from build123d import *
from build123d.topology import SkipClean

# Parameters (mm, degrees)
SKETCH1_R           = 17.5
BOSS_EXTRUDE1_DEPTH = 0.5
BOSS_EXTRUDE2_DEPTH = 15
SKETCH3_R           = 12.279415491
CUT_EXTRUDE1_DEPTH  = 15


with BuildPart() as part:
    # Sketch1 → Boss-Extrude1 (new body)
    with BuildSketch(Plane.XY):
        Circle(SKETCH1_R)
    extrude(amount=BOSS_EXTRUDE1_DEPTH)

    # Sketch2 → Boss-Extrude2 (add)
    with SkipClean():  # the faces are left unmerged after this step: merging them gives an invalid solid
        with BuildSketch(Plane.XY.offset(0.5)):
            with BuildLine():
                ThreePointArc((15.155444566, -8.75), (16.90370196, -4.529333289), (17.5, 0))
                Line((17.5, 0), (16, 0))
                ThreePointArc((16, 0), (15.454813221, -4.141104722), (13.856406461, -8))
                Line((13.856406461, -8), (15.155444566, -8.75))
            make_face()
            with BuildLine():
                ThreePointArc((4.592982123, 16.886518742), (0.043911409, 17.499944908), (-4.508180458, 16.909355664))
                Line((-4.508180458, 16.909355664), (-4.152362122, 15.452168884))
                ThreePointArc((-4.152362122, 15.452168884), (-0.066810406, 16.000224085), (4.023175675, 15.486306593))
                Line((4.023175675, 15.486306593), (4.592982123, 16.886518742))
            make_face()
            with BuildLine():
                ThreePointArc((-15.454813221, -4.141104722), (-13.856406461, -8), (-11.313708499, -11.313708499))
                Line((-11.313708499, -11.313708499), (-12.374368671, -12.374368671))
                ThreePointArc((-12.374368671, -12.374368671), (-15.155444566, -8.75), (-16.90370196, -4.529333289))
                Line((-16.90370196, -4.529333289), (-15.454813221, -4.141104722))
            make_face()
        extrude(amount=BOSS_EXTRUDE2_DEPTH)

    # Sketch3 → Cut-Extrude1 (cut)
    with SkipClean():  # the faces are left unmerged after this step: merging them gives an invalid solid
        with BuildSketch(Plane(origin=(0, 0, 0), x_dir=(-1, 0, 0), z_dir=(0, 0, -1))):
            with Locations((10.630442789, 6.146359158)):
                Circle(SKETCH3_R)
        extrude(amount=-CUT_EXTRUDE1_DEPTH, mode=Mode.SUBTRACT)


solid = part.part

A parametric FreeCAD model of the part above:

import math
import FreeCAD as App
import Part
import Sketcher

V = App.Vector
Q = App.Units.Quantity

doc = App.newDocument("Part")
body = doc.addObject("PartDesign::Body", "Body")

sketch1 = body.newObject("Sketcher::SketchObject", "Sketch")
sketch1.AttachmentSupport = (doc.getObject("XY_Plane"), [""])
sketch1.MapMode = "FlatFace"
sketch1.addGeometry(Part.Circle(V(0, 0, 0), V(0, 0, 1), 18), False)
sketch1.addConstraint(Sketcher.Constraint("Coincident", 0, 3, -1, 1))
sketch1.addConstraint(Sketcher.Constraint("Diameter", 0, 35.0))
pad1 = body.newObject("PartDesign::Pad", "Pad")
pad1.Profile = sketch1
pad1.Length = 0.5

sketch2 = body.newObject("Sketcher::SketchObject", "Sketch001")
sketch2.AttachmentSupport = (doc.getObject("XY_Plane"), [""])
sketch2.MapMode = "FlatFace"
sketch2.AttachmentOffset = App.Placement(V(0, 0, 0.5), App.Rotation())
sketch2.addGeometry(Part.ArcOfCircle(Part.Circle(V(0, 0, 0), V(0, 0, 1), 17.5), math.radians(-30), math.radians(0)), False)
sketch2.addGeometry(Part.LineSegment(V(17.5, 0, 0), V(16, 0, 0)), False)
sketch2.addGeometry(Part.ArcOfCircle(Part.Circle(V(0, 0, 0), V(0, 0, 1), 16), math.radians(-30), math.radians(0)), False)
sketch2.addGeometry(Part.LineSegment(V(13.9, -8, 0), V(15.2, -8.8, 0)), False)
sketch2.addGeometry(Part.ArcOfCircle(Part.Circle(V(0, 0, 0), V(0, 0, 1), 17.5), math.radians(75), math.radians(105)), False)
sketch2.addGeometry(Part.LineSegment(V(-4.5, 16.9, 0), V(-4.2, 15.5, 0)), False)
sketch2.addGeometry(Part.ArcOfCircle(Part.Circle(V(0, 0, 0), V(0, 0, 1), 16), math.radians(75), math.radians(105)), False)
sketch2.addGeometry(Part.LineSegment(V(4, 15.5, 0), V(4.6, 16.9, 0)), False)
sketch2.addGeometry(Part.ArcOfCircle(Part.Circle(V(0, 0, 0), V(0, 0, 1), 16), math.radians(-165), math.radians(-135)), False)
sketch2.addGeometry(Part.LineSegment(V(-15.5, -4.1, 0), V(-16.9, -4.5, 0)), False)
sketch2.addGeometry(Part.ArcOfCircle(Part.Circle(V(0, 0, 0), V(0, 0, 1), 17.5), math.radians(-165), math.radians(-135)), False)
sketch2.addGeometry(Part.LineSegment(V(-12.4, -12.4, 0), V(-11.3, -11.3, 0)), False)
sketch2.addConstraint(Sketcher.Constraint("Coincident", 0, 2, 1, 1))
sketch2.addConstraint(Sketcher.Constraint("Coincident", 1, 2, 2, 2))
sketch2.addConstraint(Sketcher.Constraint("Coincident", 2, 1, 3, 1))
sketch2.addConstraint(Sketcher.Constraint("Coincident", 3, 2, 0, 1))
sketch2.addConstraint(Sketcher.Constraint("Coincident", 4, 2, 5, 1))
sketch2.addConstraint(Sketcher.Constraint("Coincident", 5, 2, 6, 2))
sketch2.addConstraint(Sketcher.Constraint("Coincident", 6, 1, 7, 1))
sketch2.addConstraint(Sketcher.Constraint("Coincident", 7, 2, 4, 1))
sketch2.addConstraint(Sketcher.Constraint("Coincident", 8, 1, 9, 1))
sketch2.addConstraint(Sketcher.Constraint("Coincident", 9, 2, 10, 1))
sketch2.addConstraint(Sketcher.Constraint("Coincident", 10, 2, 11, 1))
sketch2.addConstraint(Sketcher.Constraint("Coincident", 11, 2, 8, 2))
sketch2.addConstraint(Sketcher.Constraint("Horizontal", 1))
sketch2.addConstraint(Sketcher.Constraint("Coincident", 0, 3, -1, 1))
sketch2.addConstraint(Sketcher.Constraint("Coincident", 2, 3, -1, 1))
sketch2.addConstraint(Sketcher.Constraint("Coincident", 4, 3, -1, 1))
sketch2.addConstraint(Sketcher.Constraint("Coincident", 6, 3, -1, 1))
sketch2.addConstraint(Sketcher.Constraint("Coincident", 8, 3, -1, 1))
sketch2.addConstraint(Sketcher.Constraint("Coincident", 10, 3, -1, 1))
sketch2.addConstraint(Sketcher.Constraint("Equal", 0, 4))
sketch2.addConstraint(Sketcher.Constraint("Equal", 2, 8))
sketch2.addConstraint(Sketcher.Constraint("Equal", 4, 10))
sketch2.addConstraint(Sketcher.Constraint("PointOnObject", 0, 2, -1))
sketch2.addConstraint(Sketcher.Constraint("Equal", 3, 5))
sketch2.addConstraint(Sketcher.Constraint("Radius", 2, 16.0))
sketch2.addConstraint(Sketcher.Constraint("Radius", 0, 17.5))
sketch2.addConstraint(Sketcher.Constraint("Angle", 3, Q("-30 deg")))
sketch2.addConstraint(Sketcher.Constraint("Angle", 9, Q("-165 deg")))
sketch2.addConstraint(Sketcher.Constraint("Angle", 11, Q("45 deg")))
sketch2.addConstraint(Sketcher.Constraint("DistanceY", 2, 1, -1, 1, 8.0))
sketch2.addConstraint(Sketcher.Constraint("Radius", 6, 16.000364))
sketch2.addConstraint(Sketcher.Constraint("DistanceX", 9, 2, -1, 1, 16.903702))
sketch2.addConstraint(Sketcher.Constraint("DistanceX", 4, 2, -1, 1, 4.50818))
sketch2.addConstraint(Sketcher.Constraint("DistanceY", -1, 1, 7, 2, 16.886519))
sketch2.addConstraint(Sketcher.Constraint("DistanceX", 10, 2, -1, 1, 12.374369))
sketch2.addConstraint(Sketcher.Constraint("DistanceY", 6, 1, 4, 2, 1.423049))
pad2 = body.newObject("PartDesign::Pad", "Pad001")
pad2.Profile = sketch2
pad2.Length = 15

sketch3 = body.newObject("Sketcher::SketchObject", "Sketch002")
sketch3.AttachmentSupport = (doc.getObject("XY_Plane"), [""])
sketch3.MapMode = "FlatFace"
sketch3.addGeometry(Part.Circle(V(-11, 6, 0), V(0, 0, 1), 12), False)
sketch3.addConstraint(Sketcher.Constraint("Diameter", 0, 24.558831))
sketch3.addConstraint(Sketcher.Constraint("DistanceY", -1, 1, 0, 3, 6.146359))
sketch3.addConstraint(Sketcher.Constraint("DistanceX", 0, 3, -1, 1, 10.630443))
pocket1 = body.newObject("PartDesign::Pocket", "Pocket")
pocket1.Profile = sketch3
pocket1.Length = 15
pocket1.Reversed = True

doc.recompute()
